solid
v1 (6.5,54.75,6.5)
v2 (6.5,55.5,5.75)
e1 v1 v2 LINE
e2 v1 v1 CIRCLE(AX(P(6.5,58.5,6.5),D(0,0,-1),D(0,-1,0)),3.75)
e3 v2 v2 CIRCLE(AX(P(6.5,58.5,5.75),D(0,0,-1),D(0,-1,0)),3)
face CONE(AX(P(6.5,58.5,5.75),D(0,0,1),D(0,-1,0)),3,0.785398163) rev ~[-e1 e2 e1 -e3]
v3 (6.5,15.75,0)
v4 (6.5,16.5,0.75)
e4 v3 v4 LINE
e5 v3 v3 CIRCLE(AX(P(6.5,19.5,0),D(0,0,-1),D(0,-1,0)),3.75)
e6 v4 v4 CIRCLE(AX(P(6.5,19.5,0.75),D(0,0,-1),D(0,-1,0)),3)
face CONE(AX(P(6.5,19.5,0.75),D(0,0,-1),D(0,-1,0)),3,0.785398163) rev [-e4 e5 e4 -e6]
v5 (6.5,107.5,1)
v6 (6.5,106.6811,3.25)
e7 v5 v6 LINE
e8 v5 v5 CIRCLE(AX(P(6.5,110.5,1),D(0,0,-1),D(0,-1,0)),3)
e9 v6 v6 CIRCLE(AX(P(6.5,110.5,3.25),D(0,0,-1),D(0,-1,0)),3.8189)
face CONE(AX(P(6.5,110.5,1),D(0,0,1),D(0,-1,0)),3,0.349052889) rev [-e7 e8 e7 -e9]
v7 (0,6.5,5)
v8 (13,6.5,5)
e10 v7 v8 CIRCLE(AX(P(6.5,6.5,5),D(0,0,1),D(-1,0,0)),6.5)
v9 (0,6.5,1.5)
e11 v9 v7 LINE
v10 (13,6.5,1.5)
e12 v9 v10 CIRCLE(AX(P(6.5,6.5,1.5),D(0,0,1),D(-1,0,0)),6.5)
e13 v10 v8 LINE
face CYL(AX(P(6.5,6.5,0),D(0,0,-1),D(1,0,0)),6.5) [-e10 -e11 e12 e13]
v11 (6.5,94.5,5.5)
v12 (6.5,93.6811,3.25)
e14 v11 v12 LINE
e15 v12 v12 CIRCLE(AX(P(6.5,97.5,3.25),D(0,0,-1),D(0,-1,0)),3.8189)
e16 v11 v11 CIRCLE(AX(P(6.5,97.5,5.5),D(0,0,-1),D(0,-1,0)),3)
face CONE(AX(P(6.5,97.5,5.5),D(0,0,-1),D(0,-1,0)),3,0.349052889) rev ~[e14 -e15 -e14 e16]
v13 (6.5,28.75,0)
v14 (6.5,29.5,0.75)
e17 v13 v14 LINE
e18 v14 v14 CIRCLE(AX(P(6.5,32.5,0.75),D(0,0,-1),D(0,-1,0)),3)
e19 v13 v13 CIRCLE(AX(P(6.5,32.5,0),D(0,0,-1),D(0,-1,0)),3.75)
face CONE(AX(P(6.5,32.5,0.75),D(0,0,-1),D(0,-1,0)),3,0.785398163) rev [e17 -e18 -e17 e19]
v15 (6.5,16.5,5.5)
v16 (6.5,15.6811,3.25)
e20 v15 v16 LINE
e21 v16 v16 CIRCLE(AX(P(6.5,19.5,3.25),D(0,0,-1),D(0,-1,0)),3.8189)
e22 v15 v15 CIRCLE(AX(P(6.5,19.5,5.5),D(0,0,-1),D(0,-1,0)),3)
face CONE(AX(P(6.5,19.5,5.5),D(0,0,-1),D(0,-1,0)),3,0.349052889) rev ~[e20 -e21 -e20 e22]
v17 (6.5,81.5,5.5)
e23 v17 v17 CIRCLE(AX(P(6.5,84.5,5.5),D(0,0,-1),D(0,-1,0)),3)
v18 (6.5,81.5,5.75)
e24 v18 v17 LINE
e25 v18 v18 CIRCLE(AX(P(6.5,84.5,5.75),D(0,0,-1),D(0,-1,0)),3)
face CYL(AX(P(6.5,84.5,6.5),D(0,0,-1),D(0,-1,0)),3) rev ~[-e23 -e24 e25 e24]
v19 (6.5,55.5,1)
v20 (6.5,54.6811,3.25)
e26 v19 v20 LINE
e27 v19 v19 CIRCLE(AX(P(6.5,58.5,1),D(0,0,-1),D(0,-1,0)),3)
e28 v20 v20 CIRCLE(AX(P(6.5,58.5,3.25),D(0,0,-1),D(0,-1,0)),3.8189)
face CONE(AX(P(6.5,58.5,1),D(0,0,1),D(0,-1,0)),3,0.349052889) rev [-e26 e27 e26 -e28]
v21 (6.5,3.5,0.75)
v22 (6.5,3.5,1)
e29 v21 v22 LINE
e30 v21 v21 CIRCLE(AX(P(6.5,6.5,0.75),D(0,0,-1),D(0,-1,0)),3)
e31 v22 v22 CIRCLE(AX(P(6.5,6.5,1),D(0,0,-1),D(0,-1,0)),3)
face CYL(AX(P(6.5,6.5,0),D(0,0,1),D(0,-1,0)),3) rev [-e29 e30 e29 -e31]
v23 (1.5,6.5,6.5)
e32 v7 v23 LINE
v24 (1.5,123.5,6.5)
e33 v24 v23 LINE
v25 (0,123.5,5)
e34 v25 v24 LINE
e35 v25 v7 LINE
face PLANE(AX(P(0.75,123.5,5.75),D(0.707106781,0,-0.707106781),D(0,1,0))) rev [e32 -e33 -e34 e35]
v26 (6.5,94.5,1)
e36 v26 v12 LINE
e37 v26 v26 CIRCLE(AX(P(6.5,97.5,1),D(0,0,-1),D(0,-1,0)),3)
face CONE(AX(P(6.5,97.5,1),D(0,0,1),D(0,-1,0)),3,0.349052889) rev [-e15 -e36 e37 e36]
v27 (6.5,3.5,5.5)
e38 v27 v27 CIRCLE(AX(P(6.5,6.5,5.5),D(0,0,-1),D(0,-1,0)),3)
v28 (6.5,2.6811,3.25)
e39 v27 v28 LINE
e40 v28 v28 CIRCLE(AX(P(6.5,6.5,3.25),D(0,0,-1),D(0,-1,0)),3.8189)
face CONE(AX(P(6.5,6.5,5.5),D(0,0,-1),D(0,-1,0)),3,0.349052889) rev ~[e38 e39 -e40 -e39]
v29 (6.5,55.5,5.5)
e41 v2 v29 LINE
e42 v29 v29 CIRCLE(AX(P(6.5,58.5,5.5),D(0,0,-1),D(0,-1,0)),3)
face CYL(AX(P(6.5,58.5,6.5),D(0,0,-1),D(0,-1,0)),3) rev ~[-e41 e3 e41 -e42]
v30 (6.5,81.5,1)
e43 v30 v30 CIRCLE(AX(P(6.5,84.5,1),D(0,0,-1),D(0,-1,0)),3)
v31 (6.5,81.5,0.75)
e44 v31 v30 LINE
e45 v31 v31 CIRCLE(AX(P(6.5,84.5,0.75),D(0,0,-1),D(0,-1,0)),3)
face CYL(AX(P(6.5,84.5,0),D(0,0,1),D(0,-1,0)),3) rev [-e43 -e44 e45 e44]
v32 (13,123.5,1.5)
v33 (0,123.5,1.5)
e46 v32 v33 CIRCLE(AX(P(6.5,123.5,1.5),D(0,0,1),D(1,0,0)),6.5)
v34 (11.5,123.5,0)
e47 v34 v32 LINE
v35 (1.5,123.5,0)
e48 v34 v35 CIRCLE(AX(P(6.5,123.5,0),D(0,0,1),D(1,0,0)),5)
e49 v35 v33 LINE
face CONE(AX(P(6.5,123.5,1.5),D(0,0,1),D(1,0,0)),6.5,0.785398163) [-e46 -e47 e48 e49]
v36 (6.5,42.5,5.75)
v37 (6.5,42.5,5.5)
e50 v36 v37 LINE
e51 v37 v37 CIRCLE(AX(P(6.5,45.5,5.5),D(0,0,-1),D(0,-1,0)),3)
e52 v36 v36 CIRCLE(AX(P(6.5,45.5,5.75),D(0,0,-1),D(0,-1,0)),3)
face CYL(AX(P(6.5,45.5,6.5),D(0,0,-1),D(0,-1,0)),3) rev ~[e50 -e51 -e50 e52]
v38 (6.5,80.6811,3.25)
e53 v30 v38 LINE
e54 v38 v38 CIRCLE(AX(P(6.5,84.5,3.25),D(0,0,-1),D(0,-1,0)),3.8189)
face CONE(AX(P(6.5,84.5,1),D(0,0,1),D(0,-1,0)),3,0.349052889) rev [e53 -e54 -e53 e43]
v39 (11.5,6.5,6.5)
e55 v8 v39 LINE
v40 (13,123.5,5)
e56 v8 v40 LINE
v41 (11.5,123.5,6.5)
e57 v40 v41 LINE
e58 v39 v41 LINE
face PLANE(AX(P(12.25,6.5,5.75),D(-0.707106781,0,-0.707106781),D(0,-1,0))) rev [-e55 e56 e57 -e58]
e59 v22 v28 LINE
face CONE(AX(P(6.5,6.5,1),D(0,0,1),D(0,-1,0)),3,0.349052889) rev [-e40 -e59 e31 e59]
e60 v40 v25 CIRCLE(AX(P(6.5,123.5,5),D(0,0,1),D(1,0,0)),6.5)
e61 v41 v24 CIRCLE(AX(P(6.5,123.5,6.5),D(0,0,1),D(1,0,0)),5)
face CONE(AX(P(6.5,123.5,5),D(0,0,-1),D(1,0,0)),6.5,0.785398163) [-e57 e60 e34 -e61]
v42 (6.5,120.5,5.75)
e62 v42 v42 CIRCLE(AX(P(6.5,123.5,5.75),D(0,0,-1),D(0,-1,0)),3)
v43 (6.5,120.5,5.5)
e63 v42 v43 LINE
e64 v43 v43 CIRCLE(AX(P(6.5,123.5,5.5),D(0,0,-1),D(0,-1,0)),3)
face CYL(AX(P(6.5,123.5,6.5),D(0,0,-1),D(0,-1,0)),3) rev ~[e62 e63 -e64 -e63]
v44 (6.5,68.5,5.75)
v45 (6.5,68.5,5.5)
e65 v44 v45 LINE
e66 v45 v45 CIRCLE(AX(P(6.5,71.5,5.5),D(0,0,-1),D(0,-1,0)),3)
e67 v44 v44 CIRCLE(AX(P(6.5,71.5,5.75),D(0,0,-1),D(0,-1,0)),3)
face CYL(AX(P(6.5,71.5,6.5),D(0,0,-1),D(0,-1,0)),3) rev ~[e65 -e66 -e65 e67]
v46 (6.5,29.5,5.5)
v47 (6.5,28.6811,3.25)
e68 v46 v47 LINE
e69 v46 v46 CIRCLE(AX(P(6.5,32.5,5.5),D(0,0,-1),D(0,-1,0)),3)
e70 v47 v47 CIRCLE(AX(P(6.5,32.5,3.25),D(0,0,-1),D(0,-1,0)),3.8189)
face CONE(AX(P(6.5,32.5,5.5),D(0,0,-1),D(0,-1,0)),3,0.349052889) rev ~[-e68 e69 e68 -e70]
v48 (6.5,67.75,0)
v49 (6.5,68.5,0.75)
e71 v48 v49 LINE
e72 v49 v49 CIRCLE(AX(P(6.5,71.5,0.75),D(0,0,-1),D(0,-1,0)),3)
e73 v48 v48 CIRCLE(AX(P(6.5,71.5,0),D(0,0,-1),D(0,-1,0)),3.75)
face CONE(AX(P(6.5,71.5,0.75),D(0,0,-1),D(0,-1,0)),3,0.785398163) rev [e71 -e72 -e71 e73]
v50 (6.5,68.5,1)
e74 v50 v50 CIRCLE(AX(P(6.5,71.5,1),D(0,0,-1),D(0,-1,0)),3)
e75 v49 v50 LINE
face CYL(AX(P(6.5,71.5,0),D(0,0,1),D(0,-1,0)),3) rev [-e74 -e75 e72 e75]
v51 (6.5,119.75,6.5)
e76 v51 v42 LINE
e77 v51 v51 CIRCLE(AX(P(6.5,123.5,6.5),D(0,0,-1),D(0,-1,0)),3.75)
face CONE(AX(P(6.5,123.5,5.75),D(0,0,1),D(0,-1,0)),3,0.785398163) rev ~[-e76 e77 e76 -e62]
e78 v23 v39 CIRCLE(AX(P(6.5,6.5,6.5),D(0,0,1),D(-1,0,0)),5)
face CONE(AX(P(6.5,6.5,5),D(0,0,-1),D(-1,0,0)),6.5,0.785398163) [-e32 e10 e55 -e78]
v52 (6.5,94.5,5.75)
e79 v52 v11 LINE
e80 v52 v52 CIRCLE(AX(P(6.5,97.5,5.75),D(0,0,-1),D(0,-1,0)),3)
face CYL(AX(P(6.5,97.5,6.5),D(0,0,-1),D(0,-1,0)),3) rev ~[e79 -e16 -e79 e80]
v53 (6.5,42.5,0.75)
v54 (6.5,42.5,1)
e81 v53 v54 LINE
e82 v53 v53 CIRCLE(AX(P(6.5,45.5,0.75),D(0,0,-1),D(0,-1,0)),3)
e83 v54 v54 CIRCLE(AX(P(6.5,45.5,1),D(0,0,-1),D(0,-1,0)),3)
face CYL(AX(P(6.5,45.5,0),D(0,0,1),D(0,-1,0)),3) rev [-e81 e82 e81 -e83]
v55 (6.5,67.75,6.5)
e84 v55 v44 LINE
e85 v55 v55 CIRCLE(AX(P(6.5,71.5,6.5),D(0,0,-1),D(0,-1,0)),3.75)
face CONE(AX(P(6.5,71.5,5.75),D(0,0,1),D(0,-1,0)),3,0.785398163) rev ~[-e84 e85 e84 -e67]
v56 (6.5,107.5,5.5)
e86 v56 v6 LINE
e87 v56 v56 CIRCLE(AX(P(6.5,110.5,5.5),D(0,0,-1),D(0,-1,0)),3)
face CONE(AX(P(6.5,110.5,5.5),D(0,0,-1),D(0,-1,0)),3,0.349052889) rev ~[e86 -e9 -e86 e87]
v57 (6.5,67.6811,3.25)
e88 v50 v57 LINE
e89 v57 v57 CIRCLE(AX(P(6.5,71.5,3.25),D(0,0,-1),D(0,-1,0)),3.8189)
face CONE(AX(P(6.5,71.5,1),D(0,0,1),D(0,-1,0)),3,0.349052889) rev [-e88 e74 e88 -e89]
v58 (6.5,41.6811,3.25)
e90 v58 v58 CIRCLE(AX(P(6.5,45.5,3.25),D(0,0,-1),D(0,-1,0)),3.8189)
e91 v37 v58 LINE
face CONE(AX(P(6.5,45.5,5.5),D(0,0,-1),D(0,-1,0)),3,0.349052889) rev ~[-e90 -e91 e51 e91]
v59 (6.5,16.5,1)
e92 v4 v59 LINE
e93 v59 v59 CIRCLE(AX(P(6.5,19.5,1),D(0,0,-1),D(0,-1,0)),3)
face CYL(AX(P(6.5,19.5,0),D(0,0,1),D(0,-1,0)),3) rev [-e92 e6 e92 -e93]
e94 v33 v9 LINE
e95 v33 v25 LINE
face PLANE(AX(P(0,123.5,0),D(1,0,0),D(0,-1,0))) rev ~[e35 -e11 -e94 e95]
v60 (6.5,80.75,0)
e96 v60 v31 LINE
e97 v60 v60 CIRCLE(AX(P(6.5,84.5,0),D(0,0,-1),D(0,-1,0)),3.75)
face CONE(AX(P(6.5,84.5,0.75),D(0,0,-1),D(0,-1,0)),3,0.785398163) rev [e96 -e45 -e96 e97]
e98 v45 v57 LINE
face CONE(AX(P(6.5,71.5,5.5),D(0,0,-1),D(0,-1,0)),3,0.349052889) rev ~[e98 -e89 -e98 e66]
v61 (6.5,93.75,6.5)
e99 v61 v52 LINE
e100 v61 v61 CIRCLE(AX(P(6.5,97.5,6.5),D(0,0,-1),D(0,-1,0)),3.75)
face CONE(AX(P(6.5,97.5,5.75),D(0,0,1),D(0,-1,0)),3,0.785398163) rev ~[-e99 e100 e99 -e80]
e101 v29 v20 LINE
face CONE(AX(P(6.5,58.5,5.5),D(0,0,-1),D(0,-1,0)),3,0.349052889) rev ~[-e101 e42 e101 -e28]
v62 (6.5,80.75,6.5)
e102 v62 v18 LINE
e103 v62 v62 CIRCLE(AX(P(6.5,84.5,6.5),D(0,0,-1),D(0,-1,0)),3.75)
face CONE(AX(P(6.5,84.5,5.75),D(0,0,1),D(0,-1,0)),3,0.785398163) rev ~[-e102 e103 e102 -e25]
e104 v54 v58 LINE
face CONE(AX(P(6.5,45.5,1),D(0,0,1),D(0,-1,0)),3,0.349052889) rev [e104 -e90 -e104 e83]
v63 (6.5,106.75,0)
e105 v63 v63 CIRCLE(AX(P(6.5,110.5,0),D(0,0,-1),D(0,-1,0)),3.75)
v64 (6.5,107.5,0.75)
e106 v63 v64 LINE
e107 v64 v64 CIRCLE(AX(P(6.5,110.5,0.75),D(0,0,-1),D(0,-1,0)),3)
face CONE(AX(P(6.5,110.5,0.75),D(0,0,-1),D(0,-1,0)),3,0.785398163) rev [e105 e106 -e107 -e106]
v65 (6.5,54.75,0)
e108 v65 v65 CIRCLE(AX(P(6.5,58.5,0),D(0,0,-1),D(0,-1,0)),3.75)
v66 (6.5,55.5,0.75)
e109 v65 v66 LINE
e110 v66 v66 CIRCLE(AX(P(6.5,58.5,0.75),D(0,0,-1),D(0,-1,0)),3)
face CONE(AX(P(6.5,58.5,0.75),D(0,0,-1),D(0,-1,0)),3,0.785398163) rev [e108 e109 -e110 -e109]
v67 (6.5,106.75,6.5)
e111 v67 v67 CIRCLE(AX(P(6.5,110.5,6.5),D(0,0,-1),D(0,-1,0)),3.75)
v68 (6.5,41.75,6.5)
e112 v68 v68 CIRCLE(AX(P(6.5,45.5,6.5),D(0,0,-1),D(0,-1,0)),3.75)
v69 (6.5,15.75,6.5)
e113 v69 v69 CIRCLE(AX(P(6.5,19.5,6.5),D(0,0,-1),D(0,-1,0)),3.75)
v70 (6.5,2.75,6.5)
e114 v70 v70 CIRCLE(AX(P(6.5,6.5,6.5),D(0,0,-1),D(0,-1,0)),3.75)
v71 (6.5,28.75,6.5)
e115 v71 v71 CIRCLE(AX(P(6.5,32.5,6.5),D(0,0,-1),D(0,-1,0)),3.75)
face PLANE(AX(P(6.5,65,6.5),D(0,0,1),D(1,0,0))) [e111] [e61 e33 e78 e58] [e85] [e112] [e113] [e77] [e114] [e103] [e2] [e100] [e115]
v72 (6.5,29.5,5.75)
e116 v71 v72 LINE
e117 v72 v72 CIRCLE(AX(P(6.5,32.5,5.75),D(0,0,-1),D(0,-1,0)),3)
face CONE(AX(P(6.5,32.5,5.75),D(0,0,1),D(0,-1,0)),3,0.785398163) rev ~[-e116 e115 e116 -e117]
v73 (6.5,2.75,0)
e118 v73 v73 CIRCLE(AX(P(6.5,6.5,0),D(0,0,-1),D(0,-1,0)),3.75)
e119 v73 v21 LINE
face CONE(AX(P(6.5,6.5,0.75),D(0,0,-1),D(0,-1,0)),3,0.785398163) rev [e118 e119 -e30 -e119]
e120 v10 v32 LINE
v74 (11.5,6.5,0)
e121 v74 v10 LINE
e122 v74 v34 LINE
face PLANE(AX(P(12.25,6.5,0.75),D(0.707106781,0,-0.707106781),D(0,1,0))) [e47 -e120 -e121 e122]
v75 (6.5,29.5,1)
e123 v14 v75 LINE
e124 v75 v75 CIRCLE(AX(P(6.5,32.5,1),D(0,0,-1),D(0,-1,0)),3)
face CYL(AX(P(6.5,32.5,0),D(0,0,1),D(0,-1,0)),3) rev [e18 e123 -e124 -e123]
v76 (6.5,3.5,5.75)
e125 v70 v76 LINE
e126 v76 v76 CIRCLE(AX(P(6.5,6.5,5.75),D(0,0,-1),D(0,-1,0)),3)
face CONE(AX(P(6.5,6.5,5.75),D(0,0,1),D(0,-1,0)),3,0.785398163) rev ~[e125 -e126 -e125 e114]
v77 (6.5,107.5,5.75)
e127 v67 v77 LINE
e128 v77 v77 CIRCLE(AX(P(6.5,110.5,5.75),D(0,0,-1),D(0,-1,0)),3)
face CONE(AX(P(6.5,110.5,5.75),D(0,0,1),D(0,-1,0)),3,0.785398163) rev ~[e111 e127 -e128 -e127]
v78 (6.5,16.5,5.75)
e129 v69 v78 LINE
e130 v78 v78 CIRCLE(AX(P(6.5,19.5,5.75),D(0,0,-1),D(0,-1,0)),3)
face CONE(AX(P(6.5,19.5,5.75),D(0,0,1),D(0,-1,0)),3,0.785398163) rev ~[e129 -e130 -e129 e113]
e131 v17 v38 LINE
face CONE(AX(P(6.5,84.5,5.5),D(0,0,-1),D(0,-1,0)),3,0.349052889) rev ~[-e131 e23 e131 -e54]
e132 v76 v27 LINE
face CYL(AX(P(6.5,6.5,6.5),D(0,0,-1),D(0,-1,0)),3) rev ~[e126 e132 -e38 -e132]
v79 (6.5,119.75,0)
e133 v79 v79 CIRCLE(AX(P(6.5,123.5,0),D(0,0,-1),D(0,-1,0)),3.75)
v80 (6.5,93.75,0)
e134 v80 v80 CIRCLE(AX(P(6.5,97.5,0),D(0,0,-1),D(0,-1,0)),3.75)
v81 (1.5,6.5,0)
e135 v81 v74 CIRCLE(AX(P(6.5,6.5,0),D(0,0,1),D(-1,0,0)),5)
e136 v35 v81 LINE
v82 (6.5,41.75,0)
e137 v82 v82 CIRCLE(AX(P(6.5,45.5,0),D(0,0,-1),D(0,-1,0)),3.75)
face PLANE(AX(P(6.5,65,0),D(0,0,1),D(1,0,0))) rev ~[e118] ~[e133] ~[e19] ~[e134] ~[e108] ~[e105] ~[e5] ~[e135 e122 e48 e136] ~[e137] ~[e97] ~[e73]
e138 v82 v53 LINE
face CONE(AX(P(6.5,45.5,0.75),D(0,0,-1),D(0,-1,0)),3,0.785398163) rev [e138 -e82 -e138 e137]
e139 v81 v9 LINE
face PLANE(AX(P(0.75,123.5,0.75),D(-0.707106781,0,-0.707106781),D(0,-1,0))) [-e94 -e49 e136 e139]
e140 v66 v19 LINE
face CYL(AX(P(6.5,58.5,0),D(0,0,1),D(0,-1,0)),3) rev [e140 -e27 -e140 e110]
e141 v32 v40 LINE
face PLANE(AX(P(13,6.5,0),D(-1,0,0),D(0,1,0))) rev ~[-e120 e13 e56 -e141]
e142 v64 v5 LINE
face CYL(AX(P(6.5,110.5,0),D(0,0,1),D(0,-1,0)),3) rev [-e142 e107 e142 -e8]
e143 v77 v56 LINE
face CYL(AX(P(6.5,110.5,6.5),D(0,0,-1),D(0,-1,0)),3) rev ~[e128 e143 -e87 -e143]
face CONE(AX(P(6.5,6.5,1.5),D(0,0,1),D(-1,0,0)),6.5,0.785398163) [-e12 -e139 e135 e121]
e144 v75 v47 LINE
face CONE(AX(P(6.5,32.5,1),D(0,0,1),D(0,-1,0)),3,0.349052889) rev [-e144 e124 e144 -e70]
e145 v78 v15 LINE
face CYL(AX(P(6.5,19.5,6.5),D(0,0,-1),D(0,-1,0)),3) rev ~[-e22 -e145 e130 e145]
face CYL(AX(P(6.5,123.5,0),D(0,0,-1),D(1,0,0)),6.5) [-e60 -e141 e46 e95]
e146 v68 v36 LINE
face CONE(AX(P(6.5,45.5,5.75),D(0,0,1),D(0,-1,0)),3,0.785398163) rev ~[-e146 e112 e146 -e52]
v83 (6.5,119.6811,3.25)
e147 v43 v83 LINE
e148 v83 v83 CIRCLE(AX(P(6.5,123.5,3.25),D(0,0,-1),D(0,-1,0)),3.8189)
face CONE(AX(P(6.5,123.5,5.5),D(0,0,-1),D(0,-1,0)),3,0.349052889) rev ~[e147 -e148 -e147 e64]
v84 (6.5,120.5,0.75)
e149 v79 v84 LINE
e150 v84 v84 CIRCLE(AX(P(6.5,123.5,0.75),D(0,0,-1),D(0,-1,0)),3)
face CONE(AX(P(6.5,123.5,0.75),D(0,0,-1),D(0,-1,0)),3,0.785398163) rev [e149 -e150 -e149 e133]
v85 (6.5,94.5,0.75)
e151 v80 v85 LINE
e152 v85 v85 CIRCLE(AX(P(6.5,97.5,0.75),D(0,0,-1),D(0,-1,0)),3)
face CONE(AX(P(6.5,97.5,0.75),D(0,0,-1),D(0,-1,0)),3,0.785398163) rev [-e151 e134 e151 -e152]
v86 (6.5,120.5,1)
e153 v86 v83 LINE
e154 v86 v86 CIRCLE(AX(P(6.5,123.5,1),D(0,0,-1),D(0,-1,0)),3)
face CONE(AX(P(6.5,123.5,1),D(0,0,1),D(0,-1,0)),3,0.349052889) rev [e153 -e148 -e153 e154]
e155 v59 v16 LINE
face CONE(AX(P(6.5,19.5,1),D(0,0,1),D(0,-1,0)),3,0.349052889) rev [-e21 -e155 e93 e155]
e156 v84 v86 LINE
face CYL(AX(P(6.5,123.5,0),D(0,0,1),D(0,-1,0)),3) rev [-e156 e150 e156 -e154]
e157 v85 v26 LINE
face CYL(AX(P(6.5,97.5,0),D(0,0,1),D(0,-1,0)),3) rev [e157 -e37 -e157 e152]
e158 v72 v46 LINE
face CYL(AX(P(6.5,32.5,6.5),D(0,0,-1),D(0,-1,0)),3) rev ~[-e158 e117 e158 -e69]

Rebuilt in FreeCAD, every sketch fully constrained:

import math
import FreeCAD as App
import Part
import Sketcher
from FreeCAD import Vector
Q = App.Units.Quantity


def edges_at(feature, points):
    """Names of the edges that pass closest to the given points."""
    edges = feature.Shape.Edges
    near = lambda p: min(range(len(edges)), key=lambda i: edges[i].distToShape(Part.Vertex(*p))[0])
    return sorted({f"Edge{near(p) + 1}" for p in points})


def add_polygon(sketch, points):
    """Adds a closed chain of lines whose ends are joined by coincident constraints."""
    first, n = sketch.GeometryCount, len(points)
    for a, b in zip(points, points[1:] + points[:1]):
        sketch.addGeometry(Part.LineSegment(App.Vector(*a, 0), App.Vector(*b, 0)), False)
    for i in range(n):
        sketch.addConstraint(Sketcher.Constraint("Coincident", first + i, 2, first + (i + 1) % n, 1))

doc = App.newDocument("Part")
body = doc.addObject("PartDesign::Body", "Body")

# Sketch on XY plane
sketch1 = body.newObject("Sketcher::SketchObject", "Sketch")
sketch1.AttachmentSupport = (doc.getObject("XY_Plane"), [""])
sketch1.MapMode = "FlatFace"
sketch1.addGeometry([
    Part.ArcOfCircle(Part.Circle(Vector(6.5, 123.5, 0), Vector(0, 0, 1), 6.5), math.radians(0), math.radians(180)),
    Part.LineSegment(Vector(0, 123.5, 0), Vector(0, 6.5, 0)),
    Part.ArcOfCircle(Part.Circle(Vector(6.5, 6.5, 0), Vector(0, 0, 1), 6.5), math.radians(180), math.radians(360)),
    Part.LineSegment(Vector(13, 6.5, 0), Vector(13, 123.5, 0)),
], False)
sketch1.addConstraint([
    Sketcher.Constraint("Tangent", 0, 2, 1, 1),
    Sketcher.Constraint("Tangent", 1, 2, 2, 1),
    Sketcher.Constraint("Tangent", 2, 2, 3, 1),
    Sketcher.Constraint("Tangent", 3, 2, 0, 1),
    Sketcher.Constraint("Vertical", 1),
    Sketcher.Constraint("Vertical", 3),
    Sketcher.Constraint("PointOnObject", 0, 2, -2),
    Sketcher.Constraint("Radius", 0, 6.5),
    Sketcher.Constraint("DistanceY", 1, 2, 1, 1, 117.0),
    Sketcher.Constraint("DistanceY", -1, 1, 0, 3, 123.5),
])
pad1 = body.newObject("PartDesign::Pad", "Pad")
pad1.Profile = sketch1
pad1.Length = 6.5

# Sketch on YZ plane
sketch2 = body.newObject("Sketcher::SketchObject", "Sketch001")
sketch2.AttachmentSupport = (doc.getObject("YZ_Plane"), [""])
sketch2.MapMode = "FlatFace"
sketch2.AttachmentOffset = App.Placement(Vector(0, 0, 6.5), App.Rotation())
add_polygon(sketch2, [(3.5, 1), (3.5, 0), (6.5, 0), (6.5, 6.5), (3.5, 6.5), (3.5, 5.5), (2.6811, 3.25)])  # lines 0-6
sketch2.addGeometry(Part.LineSegment(Vector(6.5, 6.5, 0), Vector(6.5, 0, 0)), True)  # axis
sketch2.addConstraint([
    Sketcher.Constraint("Vertical", 0),
    Sketcher.Constraint("Horizontal", 1),
    Sketcher.Constraint("Vertical", 2),
    Sketcher.Constraint("Horizontal", 3),
    Sketcher.Constraint("Vertical", 4),
    Sketcher.Constraint("Vertical", 7),
    Sketcher.Constraint("Coincident", 7, 1, 2, 2),
    Sketcher.Constraint("PointOnObject", 0, 2, -1),
    Sketcher.Constraint("PointOnObject", 7, 2, -1),
    Sketcher.Constraint("Vertical", 0, 2, 3, 2),
    Sketcher.Constraint("Equal", 0, 4),
    Sketcher.Constraint("Equal", 5, 6),
    Sketcher.Constraint("DistanceX", 1, 1, 1, 2, 3.0),
    Sketcher.Constraint("DistanceY", 0, 2, 0, 1, 1.0),
    Sketcher.Constraint("Angle", 5, Q("-109.9993 deg")),
    Sketcher.Constraint("DistanceY", 2, 1, 2, 2, 6.5),
    Sketcher.Constraint("DistanceX", -1, 1, 0, 2, 3.5),
])
groove = body.newObject("PartDesign::Groove", "Groove")
groove.Profile = sketch2
groove.ReferenceAxis = (sketch2, ["Axis0"])
groove.Angle = 360
doc.recompute()

chamfer = body.newObject("PartDesign::Chamfer", "Chamfer")
chamfer.Base = (groove, edges_at(groove, [(9.5, 6.5, 6.5), (9.5, 6.5, 0)]))
chamfer.Size = 0.75
doc.recompute()

linearpattern = body.newObject("PartDesign::LinearPattern", "LinearPattern")
linearpattern.Originals = [groove, chamfer]
linearpattern.Direction = (doc.getObject("Y_Axis"), [""])
linearpattern.Mode = "offset"
linearpattern.Offset = 13
linearpattern.Occurrences = 10
body.Tip = linearpattern
doc.recompute()

chamfer2 = body.newObject("PartDesign::Chamfer", "Chamfer001")
chamfer2.Base = (linearpattern, edges_at(linearpattern, [
    (0, 65, 0),
    (6.5, 130, 0),
    (13, 65, 0),
    (6.5, 0, 0),
    (0, 65, 6.5),
    (6.5, 130, 6.5),
    (13, 65, 6.5),
    (6.5, 0, 6.5),
]))
chamfer2.Size = 1.5

doc.recompute()
